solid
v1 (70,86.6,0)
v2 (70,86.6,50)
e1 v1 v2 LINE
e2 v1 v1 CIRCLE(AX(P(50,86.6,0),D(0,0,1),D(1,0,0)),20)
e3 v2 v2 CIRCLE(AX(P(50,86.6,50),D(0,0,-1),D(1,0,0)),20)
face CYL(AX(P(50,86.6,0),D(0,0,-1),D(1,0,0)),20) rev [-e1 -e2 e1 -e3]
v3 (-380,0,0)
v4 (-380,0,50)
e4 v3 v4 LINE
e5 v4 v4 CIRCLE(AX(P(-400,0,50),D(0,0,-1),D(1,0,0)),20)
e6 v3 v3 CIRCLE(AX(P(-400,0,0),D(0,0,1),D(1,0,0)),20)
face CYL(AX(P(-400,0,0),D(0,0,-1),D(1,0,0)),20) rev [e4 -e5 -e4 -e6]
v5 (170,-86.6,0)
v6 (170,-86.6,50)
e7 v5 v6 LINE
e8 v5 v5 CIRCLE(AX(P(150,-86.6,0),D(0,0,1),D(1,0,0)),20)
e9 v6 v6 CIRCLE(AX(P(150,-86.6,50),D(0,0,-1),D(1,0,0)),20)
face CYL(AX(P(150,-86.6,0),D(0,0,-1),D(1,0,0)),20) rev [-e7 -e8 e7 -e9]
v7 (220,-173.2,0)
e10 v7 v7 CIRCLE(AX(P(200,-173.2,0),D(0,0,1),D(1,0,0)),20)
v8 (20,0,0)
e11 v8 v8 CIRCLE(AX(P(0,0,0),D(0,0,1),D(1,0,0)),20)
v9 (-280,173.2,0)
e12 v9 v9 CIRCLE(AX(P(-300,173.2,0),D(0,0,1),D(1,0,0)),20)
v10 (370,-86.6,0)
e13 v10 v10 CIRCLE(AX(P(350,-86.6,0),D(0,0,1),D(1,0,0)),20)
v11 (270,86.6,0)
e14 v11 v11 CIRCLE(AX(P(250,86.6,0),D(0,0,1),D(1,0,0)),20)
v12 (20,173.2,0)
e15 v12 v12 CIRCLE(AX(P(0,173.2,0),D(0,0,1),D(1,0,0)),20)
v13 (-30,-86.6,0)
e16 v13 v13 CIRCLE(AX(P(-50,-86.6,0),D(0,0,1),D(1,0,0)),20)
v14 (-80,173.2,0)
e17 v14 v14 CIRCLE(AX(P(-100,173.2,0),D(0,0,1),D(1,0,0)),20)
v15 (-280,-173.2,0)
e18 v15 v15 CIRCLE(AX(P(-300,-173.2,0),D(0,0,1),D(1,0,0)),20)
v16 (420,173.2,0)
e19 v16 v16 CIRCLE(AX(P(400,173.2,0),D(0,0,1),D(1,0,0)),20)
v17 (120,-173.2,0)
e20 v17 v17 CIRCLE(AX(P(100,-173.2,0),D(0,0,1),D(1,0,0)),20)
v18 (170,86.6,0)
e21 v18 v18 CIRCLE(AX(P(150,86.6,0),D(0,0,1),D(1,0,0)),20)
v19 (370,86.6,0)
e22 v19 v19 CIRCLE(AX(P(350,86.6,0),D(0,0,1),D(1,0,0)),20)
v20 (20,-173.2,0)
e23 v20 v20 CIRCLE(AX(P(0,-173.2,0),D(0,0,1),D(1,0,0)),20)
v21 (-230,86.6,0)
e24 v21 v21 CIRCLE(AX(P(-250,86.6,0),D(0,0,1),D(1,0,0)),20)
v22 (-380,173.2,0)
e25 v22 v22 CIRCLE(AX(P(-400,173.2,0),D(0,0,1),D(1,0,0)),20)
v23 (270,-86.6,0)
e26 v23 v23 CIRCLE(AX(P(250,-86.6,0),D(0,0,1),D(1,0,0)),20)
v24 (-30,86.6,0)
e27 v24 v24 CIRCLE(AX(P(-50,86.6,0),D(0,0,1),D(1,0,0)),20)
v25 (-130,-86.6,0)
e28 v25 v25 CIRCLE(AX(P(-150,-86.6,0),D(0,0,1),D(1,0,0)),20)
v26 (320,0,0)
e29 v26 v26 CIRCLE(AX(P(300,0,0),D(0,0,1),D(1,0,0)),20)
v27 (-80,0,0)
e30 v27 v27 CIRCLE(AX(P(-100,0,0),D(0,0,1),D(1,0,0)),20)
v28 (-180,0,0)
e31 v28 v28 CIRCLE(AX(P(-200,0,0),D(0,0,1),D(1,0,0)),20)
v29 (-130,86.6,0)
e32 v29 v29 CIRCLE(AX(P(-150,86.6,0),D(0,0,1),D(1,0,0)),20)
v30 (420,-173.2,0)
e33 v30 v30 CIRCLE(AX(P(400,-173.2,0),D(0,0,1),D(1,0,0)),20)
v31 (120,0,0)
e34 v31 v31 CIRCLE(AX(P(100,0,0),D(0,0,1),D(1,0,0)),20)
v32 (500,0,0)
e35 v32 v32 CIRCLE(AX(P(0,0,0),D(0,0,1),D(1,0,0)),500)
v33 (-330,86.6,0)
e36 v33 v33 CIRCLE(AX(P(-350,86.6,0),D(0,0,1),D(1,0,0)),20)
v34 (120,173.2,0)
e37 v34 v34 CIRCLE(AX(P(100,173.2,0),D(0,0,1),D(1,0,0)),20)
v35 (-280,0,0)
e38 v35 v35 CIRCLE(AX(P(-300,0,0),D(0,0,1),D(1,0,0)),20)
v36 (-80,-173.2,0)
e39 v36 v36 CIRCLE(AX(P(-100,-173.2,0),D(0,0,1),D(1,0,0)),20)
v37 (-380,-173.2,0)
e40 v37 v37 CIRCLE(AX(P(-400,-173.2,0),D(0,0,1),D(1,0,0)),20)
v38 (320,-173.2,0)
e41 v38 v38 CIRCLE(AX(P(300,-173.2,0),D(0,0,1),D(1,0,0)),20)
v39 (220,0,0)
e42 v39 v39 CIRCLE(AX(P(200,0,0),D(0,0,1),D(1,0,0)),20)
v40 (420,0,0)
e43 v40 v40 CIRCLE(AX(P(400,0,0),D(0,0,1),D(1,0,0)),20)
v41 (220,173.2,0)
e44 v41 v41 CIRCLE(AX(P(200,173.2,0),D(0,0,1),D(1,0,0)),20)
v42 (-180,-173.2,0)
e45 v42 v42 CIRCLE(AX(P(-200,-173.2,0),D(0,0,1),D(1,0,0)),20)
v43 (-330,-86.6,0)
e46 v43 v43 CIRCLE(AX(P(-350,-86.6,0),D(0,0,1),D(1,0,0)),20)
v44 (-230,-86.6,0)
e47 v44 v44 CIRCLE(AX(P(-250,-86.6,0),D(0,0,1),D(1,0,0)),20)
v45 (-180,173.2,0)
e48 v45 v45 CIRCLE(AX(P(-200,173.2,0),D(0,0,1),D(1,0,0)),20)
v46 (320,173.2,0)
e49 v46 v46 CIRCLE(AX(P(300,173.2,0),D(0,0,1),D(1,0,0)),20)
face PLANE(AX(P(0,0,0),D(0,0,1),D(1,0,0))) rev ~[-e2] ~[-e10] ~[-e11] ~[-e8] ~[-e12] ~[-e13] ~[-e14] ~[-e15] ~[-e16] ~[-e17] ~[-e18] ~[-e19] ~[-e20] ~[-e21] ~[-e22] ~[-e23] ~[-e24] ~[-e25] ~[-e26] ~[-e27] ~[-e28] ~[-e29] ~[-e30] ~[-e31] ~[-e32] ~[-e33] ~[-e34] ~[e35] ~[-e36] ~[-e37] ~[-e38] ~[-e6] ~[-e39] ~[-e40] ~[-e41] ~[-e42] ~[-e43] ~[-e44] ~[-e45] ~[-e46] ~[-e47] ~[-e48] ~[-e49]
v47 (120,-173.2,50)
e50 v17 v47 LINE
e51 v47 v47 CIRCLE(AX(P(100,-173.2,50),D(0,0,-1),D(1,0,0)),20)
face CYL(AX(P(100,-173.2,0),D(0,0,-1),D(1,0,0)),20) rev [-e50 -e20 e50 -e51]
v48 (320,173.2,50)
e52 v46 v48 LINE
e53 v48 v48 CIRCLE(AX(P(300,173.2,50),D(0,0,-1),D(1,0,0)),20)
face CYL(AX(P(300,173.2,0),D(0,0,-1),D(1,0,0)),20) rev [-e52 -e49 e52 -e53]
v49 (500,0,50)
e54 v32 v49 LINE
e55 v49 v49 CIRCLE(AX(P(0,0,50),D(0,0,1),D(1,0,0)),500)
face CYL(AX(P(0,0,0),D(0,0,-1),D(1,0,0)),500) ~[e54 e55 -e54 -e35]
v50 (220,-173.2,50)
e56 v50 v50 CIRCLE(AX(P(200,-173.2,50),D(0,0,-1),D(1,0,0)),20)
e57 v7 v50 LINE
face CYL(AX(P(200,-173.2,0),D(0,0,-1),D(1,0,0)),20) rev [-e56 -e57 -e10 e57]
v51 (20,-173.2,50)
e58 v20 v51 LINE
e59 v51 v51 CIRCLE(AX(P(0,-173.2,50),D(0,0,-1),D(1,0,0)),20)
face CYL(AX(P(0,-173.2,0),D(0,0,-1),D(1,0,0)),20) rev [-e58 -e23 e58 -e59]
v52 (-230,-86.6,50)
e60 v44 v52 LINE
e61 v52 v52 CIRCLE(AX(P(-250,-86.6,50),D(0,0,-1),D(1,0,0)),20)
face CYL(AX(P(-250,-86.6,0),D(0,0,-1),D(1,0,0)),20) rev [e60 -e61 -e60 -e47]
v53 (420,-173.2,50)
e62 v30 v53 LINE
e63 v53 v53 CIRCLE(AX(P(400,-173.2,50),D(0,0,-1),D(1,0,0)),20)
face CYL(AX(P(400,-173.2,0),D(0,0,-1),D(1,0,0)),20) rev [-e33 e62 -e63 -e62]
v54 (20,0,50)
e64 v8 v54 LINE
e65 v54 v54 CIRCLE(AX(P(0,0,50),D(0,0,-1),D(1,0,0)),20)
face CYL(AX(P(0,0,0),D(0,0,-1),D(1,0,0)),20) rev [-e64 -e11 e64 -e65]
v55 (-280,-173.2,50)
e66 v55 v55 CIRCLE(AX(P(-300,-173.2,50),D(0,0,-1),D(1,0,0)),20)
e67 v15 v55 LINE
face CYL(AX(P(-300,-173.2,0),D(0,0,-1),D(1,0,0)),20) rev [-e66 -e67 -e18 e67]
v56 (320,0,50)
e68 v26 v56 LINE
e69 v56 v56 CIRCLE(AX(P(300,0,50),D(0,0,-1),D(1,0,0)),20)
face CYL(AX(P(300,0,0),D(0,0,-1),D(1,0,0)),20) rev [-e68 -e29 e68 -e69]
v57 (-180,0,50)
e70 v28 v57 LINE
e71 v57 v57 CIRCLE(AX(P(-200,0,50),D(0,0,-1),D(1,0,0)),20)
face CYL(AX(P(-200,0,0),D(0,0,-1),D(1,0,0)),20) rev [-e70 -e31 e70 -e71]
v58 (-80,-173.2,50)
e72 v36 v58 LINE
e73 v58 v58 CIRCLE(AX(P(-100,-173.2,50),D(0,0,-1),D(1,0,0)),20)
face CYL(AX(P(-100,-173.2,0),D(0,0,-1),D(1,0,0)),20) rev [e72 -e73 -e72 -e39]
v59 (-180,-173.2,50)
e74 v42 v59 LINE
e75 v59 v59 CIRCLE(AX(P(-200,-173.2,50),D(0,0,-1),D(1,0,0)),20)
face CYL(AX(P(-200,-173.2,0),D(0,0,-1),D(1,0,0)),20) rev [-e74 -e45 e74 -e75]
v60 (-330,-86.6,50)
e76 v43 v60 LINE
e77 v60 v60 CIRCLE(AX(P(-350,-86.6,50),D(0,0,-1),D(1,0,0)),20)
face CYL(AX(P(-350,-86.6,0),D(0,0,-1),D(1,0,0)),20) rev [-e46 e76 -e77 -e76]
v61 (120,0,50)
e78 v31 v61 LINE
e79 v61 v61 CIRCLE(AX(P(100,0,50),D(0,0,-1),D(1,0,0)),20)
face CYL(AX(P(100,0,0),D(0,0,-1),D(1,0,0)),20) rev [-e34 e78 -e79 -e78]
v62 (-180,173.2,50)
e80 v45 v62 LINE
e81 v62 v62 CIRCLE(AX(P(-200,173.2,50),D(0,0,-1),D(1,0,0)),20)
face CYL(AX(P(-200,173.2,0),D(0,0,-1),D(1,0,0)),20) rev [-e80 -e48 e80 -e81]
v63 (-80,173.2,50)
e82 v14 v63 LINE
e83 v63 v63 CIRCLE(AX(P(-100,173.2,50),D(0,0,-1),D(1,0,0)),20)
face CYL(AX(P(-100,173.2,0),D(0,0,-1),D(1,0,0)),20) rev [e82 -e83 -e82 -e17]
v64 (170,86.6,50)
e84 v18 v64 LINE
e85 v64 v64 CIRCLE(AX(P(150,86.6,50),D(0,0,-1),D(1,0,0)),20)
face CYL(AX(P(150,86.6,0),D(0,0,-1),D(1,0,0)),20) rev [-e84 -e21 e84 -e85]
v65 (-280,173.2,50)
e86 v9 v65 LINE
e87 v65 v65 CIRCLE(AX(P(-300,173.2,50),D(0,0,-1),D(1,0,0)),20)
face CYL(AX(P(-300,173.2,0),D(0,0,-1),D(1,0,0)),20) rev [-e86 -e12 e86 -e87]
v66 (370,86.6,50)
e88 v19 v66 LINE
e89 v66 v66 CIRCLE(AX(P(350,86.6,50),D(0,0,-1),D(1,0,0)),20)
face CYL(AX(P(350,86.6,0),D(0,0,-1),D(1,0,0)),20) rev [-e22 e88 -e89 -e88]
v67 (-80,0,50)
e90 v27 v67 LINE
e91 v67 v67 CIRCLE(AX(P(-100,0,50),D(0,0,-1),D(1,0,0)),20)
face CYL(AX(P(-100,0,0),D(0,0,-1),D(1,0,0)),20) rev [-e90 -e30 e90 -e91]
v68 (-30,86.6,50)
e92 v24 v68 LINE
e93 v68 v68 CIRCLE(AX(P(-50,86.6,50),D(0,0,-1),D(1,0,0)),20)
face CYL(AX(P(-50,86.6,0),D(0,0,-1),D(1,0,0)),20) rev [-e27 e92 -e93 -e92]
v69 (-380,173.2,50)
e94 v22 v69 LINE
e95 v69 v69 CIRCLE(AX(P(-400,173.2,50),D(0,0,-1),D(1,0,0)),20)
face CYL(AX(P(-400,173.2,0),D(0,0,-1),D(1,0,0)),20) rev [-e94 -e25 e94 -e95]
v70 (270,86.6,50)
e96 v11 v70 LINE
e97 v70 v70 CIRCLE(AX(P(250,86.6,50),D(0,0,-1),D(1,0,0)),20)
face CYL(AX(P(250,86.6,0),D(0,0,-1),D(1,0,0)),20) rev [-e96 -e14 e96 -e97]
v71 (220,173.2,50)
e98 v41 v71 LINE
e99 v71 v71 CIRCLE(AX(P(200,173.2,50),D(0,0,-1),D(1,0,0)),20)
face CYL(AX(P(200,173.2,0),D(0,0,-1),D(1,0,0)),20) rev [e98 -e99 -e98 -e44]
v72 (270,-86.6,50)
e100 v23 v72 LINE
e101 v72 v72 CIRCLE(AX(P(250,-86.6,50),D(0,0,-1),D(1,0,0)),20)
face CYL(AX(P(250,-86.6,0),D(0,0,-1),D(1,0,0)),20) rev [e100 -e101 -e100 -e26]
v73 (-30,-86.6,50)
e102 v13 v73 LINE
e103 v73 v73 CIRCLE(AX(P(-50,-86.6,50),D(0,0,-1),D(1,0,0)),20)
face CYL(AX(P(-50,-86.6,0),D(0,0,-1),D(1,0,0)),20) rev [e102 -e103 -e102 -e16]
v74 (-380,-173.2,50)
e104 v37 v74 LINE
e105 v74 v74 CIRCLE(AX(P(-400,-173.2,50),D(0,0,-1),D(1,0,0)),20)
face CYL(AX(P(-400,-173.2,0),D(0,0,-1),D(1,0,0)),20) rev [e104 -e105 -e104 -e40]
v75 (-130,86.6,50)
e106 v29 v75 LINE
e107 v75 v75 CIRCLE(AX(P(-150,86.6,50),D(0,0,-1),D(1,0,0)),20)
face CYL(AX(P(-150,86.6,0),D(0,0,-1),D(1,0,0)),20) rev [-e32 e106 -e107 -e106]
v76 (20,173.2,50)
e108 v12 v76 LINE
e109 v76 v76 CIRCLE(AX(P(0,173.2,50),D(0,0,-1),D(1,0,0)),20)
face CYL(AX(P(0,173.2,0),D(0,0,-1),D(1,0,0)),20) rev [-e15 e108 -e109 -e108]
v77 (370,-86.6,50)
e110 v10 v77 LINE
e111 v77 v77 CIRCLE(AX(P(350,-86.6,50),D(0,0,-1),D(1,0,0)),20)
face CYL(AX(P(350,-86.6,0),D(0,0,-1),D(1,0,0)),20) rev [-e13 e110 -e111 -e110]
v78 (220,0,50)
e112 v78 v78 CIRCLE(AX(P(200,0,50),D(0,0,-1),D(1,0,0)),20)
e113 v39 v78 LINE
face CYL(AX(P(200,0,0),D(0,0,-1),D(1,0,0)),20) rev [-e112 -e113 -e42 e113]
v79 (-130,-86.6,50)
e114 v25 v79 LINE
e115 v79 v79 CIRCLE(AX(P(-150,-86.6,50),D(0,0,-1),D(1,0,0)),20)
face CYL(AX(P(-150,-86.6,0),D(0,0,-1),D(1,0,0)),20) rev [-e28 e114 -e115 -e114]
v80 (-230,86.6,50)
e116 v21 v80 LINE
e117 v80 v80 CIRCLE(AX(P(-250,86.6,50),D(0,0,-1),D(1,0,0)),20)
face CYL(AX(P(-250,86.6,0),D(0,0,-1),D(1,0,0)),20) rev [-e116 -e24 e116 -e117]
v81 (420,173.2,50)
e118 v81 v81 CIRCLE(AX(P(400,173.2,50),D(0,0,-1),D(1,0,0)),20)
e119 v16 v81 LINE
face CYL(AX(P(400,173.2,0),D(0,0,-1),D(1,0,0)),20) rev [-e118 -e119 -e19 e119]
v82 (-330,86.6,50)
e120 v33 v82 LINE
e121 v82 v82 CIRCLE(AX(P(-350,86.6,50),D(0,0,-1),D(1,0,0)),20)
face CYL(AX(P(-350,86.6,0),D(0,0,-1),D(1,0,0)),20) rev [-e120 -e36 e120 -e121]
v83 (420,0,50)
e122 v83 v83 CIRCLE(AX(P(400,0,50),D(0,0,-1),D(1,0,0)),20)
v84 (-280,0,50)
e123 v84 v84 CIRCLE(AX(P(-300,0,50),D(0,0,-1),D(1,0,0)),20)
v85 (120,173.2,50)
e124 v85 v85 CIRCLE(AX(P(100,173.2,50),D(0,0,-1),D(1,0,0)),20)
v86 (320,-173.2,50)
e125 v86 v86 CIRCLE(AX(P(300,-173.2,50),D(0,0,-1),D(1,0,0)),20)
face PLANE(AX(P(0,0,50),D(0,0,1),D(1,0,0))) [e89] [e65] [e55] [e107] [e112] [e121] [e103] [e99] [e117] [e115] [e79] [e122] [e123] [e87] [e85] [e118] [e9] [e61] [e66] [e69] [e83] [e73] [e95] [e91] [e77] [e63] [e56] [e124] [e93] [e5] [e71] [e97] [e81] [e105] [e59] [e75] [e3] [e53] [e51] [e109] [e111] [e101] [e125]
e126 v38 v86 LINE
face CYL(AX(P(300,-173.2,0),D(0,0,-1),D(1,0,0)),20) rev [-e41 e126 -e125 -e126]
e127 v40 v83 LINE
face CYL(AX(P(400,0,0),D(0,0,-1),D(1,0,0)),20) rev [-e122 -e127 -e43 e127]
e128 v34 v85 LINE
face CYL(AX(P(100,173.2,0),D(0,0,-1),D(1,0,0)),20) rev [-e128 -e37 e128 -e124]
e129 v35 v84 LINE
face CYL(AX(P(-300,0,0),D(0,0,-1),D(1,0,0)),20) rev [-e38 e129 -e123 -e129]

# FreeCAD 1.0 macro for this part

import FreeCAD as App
import Part
import Sketcher
from FreeCAD import Vector
Q = App.Units.Quantity

doc = App.newDocument("Part")
body = doc.addObject("PartDesign::Body", "Body")

sketch1 = body.newObject("Sketcher::SketchObject", "Sketch")
sketch1.AttachmentSupport = (doc.getObject("XY_Plane"), [""])
sketch1.MapMode = "FlatFace"
sketch1.addGeometry(Part.Circle(Vector(0, 0, 0), Vector(0, 0, 1), 500), False)
sketch1.addConstraint([
    Sketcher.Constraint("Coincident", 0, 3, -1, 1),
    Sketcher.Constraint("Diameter", 0, Q("1000 mm")),
])
pad1 = body.newObject("PartDesign::Pad", "Pad")
pad1.Profile = sketch1
pad1.Length = 50

sketch2 = body.newObject("Sketcher::SketchObject", "Sketch001")
sketch2.AttachmentSupport = (doc.getObject("XY_Plane"), [""])
sketch2.MapMode = "FlatFace"
sketch2.addGeometry(Part.Circle(Vector(-400, 0, 0), Vector(0, 0, 1), 20), False)
sketch2.addConstraint([
    Sketcher.Constraint("PointOnObject", 0, 3, -1),
    Sketcher.Constraint("Diameter", 0, Q("40 mm")),
    Sketcher.Constraint("DistanceX", 0, 3, -1, 1, Q("400 mm")),
])
pocket1 = body.newObject("PartDesign::Pocket", "Pocket")
pocket1.Profile = sketch2
pocket1.Type = "ThroughAll"
pocket1.Reversed = True

sketch3 = body.newObject("Sketcher::SketchObject", "Sketch002")
sketch3.AttachmentSupport = (doc.getObject("XY_Plane"), [""])
sketch3.MapMode = "FlatFace"
sketch3.addGeometry(Part.Circle(Vector(-300, 0, 0), Vector(0, 0, 1), 20), False)
sketch3.addConstraint([
    Sketcher.Constraint("PointOnObject", 0, 3, -1),
    Sketcher.Constraint("Diameter", 0, Q("40 mm")),
    Sketcher.Constraint("DistanceX", 0, 3, -1, 1, Q("300 mm")),
])
pocket2 = body.newObject("PartDesign::Pocket", "Pocket001")
pocket2.Profile = sketch3
pocket2.Type = "ThroughAll"
pocket2.Reversed = True

sketch4 = body.newObject("Sketcher::SketchObject", "Sketch003")
sketch4.AttachmentSupport = (doc.getObject("XY_Plane"), [""])
sketch4.MapMode = "FlatFace"
sketch4.addGeometry(Part.Circle(Vector(-200, 0, 0), Vector(0, 0, 1), 20), False)
sketch4.addConstraint([
    Sketcher.Constraint("PointOnObject", 0, 3, -1),
    Sketcher.Constraint("Diameter", 0, Q("40 mm")),
    Sketcher.Constraint("DistanceX", 0, 3, -1, 1, Q("200 mm")),
])
pocket3 = body.newObject("PartDesign::Pocket", "Pocket002")
pocket3.Profile = sketch4
pocket3.Type = "ThroughAll"
pocket3.Reversed = True

sketch5 = body.newObject("Sketcher::SketchObject", "Sketch004")
sketch5.AttachmentSupport = (doc.getObject("XY_Plane"), [""])
sketch5.MapMode = "FlatFace"
sketch5.addGeometry(Part.Circle(Vector(-100, 0, 0), Vector(0, 0, 1), 20), False)
sketch5.addConstraint([
    Sketcher.Constraint("PointOnObject", 0, 3, -1),
    Sketcher.Constraint("Diameter", 0, Q("40 mm")),
    Sketcher.Constraint("DistanceX", 0, 3, -1, 1, Q("100 mm")),
])
pocket4 = body.newObject("PartDesign::Pocket", "Pocket003")
pocket4.Profile = sketch5
pocket4.Type = "ThroughAll"
pocket4.Reversed = True

sketch6 = body.newObject("Sketcher::SketchObject", "Sketch005")
sketch6.AttachmentSupport = (doc.getObject("XY_Plane"), [""])
sketch6.MapMode = "FlatFace"
sketch6.addGeometry(Part.Circle(Vector(0, 0, 0), Vector(0, 0, 1), 20), False)
sketch6.addConstraint([
    Sketcher.Constraint("Coincident", 0, 3, -1, 1),
    Sketcher.Constraint("Diameter", 0, Q("40 mm")),
])
pocket5 = body.newObject("PartDesign::Pocket", "Pocket004")
pocket5.Profile = sketch6
pocket5.Type = "ThroughAll"
pocket5.Reversed = True

sketch7 = body.newObject("Sketcher::SketchObject", "Sketch006")
sketch7.AttachmentSupport = (doc.getObject("XY_Plane"), [""])
sketch7.MapMode = "FlatFace"
sketch7.addGeometry(Part.Circle(Vector(100, 0, 0), Vector(0, 0, 1), 20), False)
sketch7.addConstraint([
    Sketcher.Constraint("PointOnObject", 0, 3, -1),
    Sketcher.Constraint("Diameter", 0, Q("40 mm")),
    Sketcher.Constraint("DistanceX", -1, 1, 0, 3, Q("100 mm")),
])
pocket6 = body.newObject("PartDesign::Pocket", "Pocket005")
pocket6.Profile = sketch7
pocket6.Type = "ThroughAll"
pocket6.Reversed = True

sketch8 = body.newObject("Sketcher::SketchObject", "Sketch007")
sketch8.AttachmentSupport = (doc.getObject("XY_Plane"), [""])
sketch8.MapMode = "FlatFace"
sketch8.addGeometry(Part.Circle(Vector(200, 0, 0), Vector(0, 0, 1), 20), False)
sketch8.addConstraint([
    Sketcher.Constraint("PointOnObject", 0, 3, -1),
    Sketcher.Constraint("Diameter", 0, Q("40 mm")),
    Sketcher.Constraint("DistanceX", -1, 1, 0, 3, Q("200 mm")),
])
pocket7 = body.newObject("PartDesign::Pocket", "Pocket006")
pocket7.Profile = sketch8
pocket7.Type = "ThroughAll"
pocket7.Reversed = True

sketch9 = body.newObject("Sketcher::SketchObject", "Sketch008")
sketch9.AttachmentSupport = (doc.getObject("XY_Plane"), [""])
sketch9.MapMode = "FlatFace"
sketch9.addGeometry(Part.Circle(Vector(300, 0, 0), Vector(0, 0, 1), 20), False)
sketch9.addConstraint([
    Sketcher.Constraint("PointOnObject", 0, 3, -1),
    Sketcher.Constraint("Diameter", 0, Q("40 mm")),
    Sketcher.Constraint("DistanceX", -1, 1, 0, 3, Q("300 mm")),
])
pocket8 = body.newObject("PartDesign::Pocket", "Pocket007")
pocket8.Profile = sketch9
pocket8.Type = "ThroughAll"
pocket8.Reversed = True

sketch10 = body.newObject("Sketcher::SketchObject", "Sketch009")
sketch10.AttachmentSupport = (doc.getObject("XY_Plane"), [""])
sketch10.MapMode = "FlatFace"
sketch10.addGeometry(Part.Circle(Vector(400, 0, 0), Vector(0, 0, 1), 20), False)
sketch10.addConstraint([
    Sketcher.Constraint("PointOnObject", 0, 3, -1),
    Sketcher.Constraint("Diameter", 0, Q("40 mm")),
    Sketcher.Constraint("DistanceX", -1, 1, 0, 3, Q("400 mm")),
])
pocket9 = body.newObject("PartDesign::Pocket", "Pocket008")
pocket9.Profile = sketch10
pocket9.Type = "ThroughAll"
pocket9.Reversed = True

sketch11 = body.newObject("Sketcher::SketchObject", "Sketch010")
sketch11.AttachmentSupport = (doc.getObject("XY_Plane"), [""])
sketch11.MapMode = "FlatFace"
sketch11.addGeometry(Part.Circle(Vector(-350, 87, 0), Vector(0, 0, 1), 20), False)
sketch11.addConstraint([
    Sketcher.Constraint("Diameter", 0, Q("40 mm")),
    Sketcher.Constraint("DistanceX", 0, 3, -1, 1, Q("350 mm")),
    Sketcher.Constraint("DistanceY", -1, 1, 0, 3, Q("86.6 mm")),
])
pocket10 = body.newObject("PartDesign::Pocket", "Pocket009")
pocket10.Profile = sketch11
pocket10.Type = "ThroughAll"
pocket10.Reversed = True

sketch12 = body.newObject("Sketcher::SketchObject", "Sketch011")
sketch12.AttachmentSupport = (doc.getObject("XY_Plane"), [""])
sketch12.MapMode = "FlatFace"
sketch12.addGeometry(Part.Circle(Vector(-250, 87, 0), Vector(0, 0, 1), 20), False)
sketch12.addConstraint([
    Sketcher.Constraint("Diameter", 0, Q("40 mm")),
    Sketcher.Constraint("DistanceX", 0, 3, -1, 1, Q("250 mm")),
    Sketcher.Constraint("DistanceY", -1, 1, 0, 3, Q("86.6 mm")),
])
pocket11 = body.newObject("PartDesign::Pocket", "Pocket010")
pocket11.Profile = sketch12
pocket11.Type = "ThroughAll"
pocket11.Reversed = True

sketch13 = body.newObject("Sketcher::SketchObject", "Sketch012")
sketch13.AttachmentSupport = (doc.getObject("XY_Plane"), [""])
sketch13.MapMode = "FlatFace"
sketch13.addGeometry(Part.Circle(Vector(-150, 87, 0), Vector(0, 0, 1), 20), False)
sketch13.addConstraint([
    Sketcher.Constraint("Diameter", 0, Q("40 mm")),
    Sketcher.Constraint("DistanceX", 0, 3, -1, 1, Q("150 mm")),
    Sketcher.Constraint("DistanceY", -1, 1, 0, 3, Q("86.6 mm")),
])
pocket12 = body.newObject("PartDesign::Pocket", "Pocket011")
pocket12.Profile = sketch13
pocket12.Type = "ThroughAll"
pocket12.Reversed = True

sketch14 = body.newObject("Sketcher::SketchObject", "Sketch013")
sketch14.AttachmentSupport = (doc.getObject("XY_Plane"), [""])
sketch14.MapMode = "FlatFace"
sketch14.addGeometry(Part.Circle(Vector(-50, 87, 0), Vector(0, 0, 1), 20), False)
sketch14.addConstraint([
    Sketcher.Constraint("Diameter", 0, Q("40 mm")),
    Sketcher.Constraint("DistanceX", 0, 3, -1, 1, Q("50 mm")),
    Sketcher.Constraint("DistanceY", -1, 1, 0, 3, Q("86.6 mm")),
])
pocket13 = body.newObject("PartDesign::Pocket", "Pocket012")
pocket13.Profile = sketch14
pocket13.Type = "ThroughAll"
pocket13.Reversed = True

sketch15 = body.newObject("Sketcher::SketchObject", "Sketch014")
sketch15.AttachmentSupport = (doc.getObject("XY_Plane"), [""])
sketch15.MapMode = "FlatFace"
sketch15.addGeometry(Part.Circle(Vector(50, 87, 0), Vector(0, 0, 1), 20), False)
sketch15.addConstraint([
    Sketcher.Constraint("Diameter", 0, Q("40 mm")),
    Sketcher.Constraint("DistanceX", -1, 1, 0, 3, Q("50 mm")),
    Sketcher.Constraint("DistanceY", -1, 1, 0, 3, Q("86.6 mm")),
])
pocket14 = body.newObject("PartDesign::Pocket", "Pocket013")
pocket14.Profile = sketch15
pocket14.Type = "ThroughAll"
pocket14.Reversed = True

sketch16 = body.newObject("Sketcher::SketchObject", "Sketch015")
sketch16.AttachmentSupport = (doc.getObject("XY_Plane"), [""])
sketch16.MapMode = "FlatFace"
sketch16.addGeometry(Part.Circle(Vector(150, 87, 0), Vector(0, 0, 1), 20), False)
sketch16.addConstraint([
    Sketcher.Constraint("Diameter", 0, Q("40 mm")),
    Sketcher.Constraint("DistanceX", -1, 1, 0, 3, Q("150 mm")),
    Sketcher.Constraint("DistanceY", -1, 1, 0, 3, Q("86.6 mm")),
])
pocket15 = body.newObject("PartDesign::Pocket", "Pocket014")
pocket15.Profile = sketch16
pocket15.Type = "ThroughAll"
pocket15.Reversed = True

sketch17 = body.newObject("Sketcher::SketchObject", "Sketch016")
sketch17.AttachmentSupport = (doc.getObject("XY_Plane"), [""])
sketch17.MapMode = "FlatFace"
sketch17.addGeometry(Part.Circle(Vector(250, 87, 0), Vector(0, 0, 1), 20), False)
sketch17.addConstraint([
    Sketcher.Constraint("Diameter", 0, Q("40 mm")),
    Sketcher.Constraint("DistanceX", -1, 1, 0, 3, Q("250 mm")),
    Sketcher.Constraint("DistanceY", -1, 1, 0, 3, Q("86.6 mm")),
])
pocket16 = body.newObject("PartDesign::Pocket", "Pocket015")
pocket16.Profile = sketch17
pocket16.Type = "ThroughAll"
pocket16.Reversed = True

sketch18 = body.newObject("Sketcher::SketchObject", "Sketch017")
sketch18.AttachmentSupport = (doc.getObject("XY_Plane"), [""])
sketch18.MapMode = "FlatFace"
sketch18.addGeometry(Part.Circle(Vector(350, 87, 0), Vector(0, 0, 1), 20), False)
sketch18.addConstraint([
    Sketcher.Constraint("Diameter", 0, Q("40 mm")),
    Sketcher.Constraint("DistanceX", -1, 1, 0, 3, Q("350 mm")),
    Sketcher.Constraint("DistanceY", -1, 1, 0, 3, Q("86.6 mm")),
])
pocket17 = body.newObject("PartDesign::Pocket", "Pocket016")
pocket17.Profile = sketch18
pocket17.Type = "ThroughAll"
pocket17.Reversed = True

sketch19 = body.newObject("Sketcher::SketchObject", "Sketch018")
sketch19.AttachmentSupport = (doc.getObject("XY_Plane"), [""])
sketch19.MapMode = "FlatFace"
sketch19.addGeometry(Part.Circle(Vector(-400, 173, 0), Vector(0, 0, 1), 20), False)
sketch19.addConstraint([
    Sketcher.Constraint("Diameter", 0, Q("40 mm")),
    Sketcher.Constraint("DistanceX", 0, 3, -1, 1, Q("400 mm")),
    Sketcher.Constraint("DistanceY", -1, 1, 0, 3, Q("173.2 mm")),
])
pocket18 = body.newObject("PartDesign::Pocket", "Pocket017")
pocket18.Profile = sketch19
pocket18.Type = "ThroughAll"
pocket18.Reversed = True

sketch20 = body.newObject("Sketcher::SketchObject", "Sketch019")
sketch20.AttachmentSupport = (doc.getObject("XY_Plane"), [""])
sketch20.MapMode = "FlatFace"
sketch20.addGeometry(Part.Circle(Vector(-300, 173, 0), Vector(0, 0, 1), 20), False)
sketch20.addConstraint([
    Sketcher.Constraint("Diameter", 0, Q("40 mm")),
    Sketcher.Constraint("DistanceX", 0, 3, -1, 1, Q("300 mm")),
    Sketcher.Constraint("DistanceY", -1, 1, 0, 3, Q("173.2 mm")),
])
pocket19 = body.newObject("PartDesign::Pocket", "Pocket018")
pocket19.Profile = sketch20
pocket19.Type = "ThroughAll"
pocket19.Reversed = True

sketch21 = body.newObject("Sketcher::SketchObject", "Sketch020")
sketch21.AttachmentSupport = (doc.getObject("XY_Plane"), [""])
sketch21.MapMode = "FlatFace"
sketch21.addGeometry(Part.Circle(Vector(-200, 173, 0), Vector(0, 0, 1), 20), False)
sketch21.addConstraint([
    Sketcher.Constraint("Diameter", 0, Q("40 mm")),
    Sketcher.Constraint("DistanceX", 0, 3, -1, 1, Q("200 mm")),
    Sketcher.Constraint("DistanceY", -1, 1, 0, 3, Q("173.2 mm")),
])
pocket20 = body.newObject("PartDesign::Pocket", "Pocket019")
pocket20.Profile = sketch21
pocket20.Type = "ThroughAll"
pocket20.Reversed = True

sketch22 = body.newObject("Sketcher::SketchObject", "Sketch021")
sketch22.AttachmentSupport = (doc.getObject("XY_Plane"), [""])
sketch22.MapMode = "FlatFace"
sketch22.addGeometry(Part.Circle(Vector(-100, 173, 0), Vector(0, 0, 1), 20), False)
sketch22.addConstraint([
    Sketcher.Constraint("Diameter", 0, Q("40 mm")),
    Sketcher.Constraint("DistanceX", 0, 3, -1, 1, Q("100 mm")),
    Sketcher.Constraint("DistanceY", -1, 1, 0, 3, Q("173.2 mm")),
])
pocket21 = body.newObject("PartDesign::Pocket", "Pocket020")
pocket21.Profile = sketch22
pocket21.Type = "ThroughAll"
pocket21.Reversed = True

sketch23 = body.newObject("Sketcher::SketchObject", "Sketch022")
sketch23.AttachmentSupport = (doc.getObject("XY_Plane"), [""])
sketch23.MapMode = "FlatFace"
sketch23.addGeometry(Part.Circle(Vector(0, 173, 0), Vector(0, 0, 1), 20), False)
sketch23.addConstraint([
    Sketcher.Constraint("PointOnObject", 0, 3, -2),
    Sketcher.Constraint("Diameter", 0, Q("40 mm")),
    Sketcher.Constraint("DistanceY", -1, 1, 0, 3, Q("173.2 mm")),
])
pocket22 = body.newObject("PartDesign::Pocket", "Pocket021")
pocket22.Profile = sketch23
pocket22.Type = "ThroughAll"
pocket22.Reversed = True

sketch24 = body.newObject("Sketcher::SketchObject", "Sketch023")
sketch24.AttachmentSupport = (doc.getObject("XY_Plane"), [""])
sketch24.MapMode = "FlatFace"
sketch24.addGeometry(Part.Circle(Vector(100, 173, 0), Vector(0, 0, 1), 20), False)
sketch24.addConstraint([
    Sketcher.Constraint("Diameter", 0, Q("40 mm")),
    Sketcher.Constraint("DistanceX", -1, 1, 0, 3, Q("100 mm")),
    Sketcher.Constraint("DistanceY", -1, 1, 0, 3, Q("173.2 mm")),
])
pocket23 = body.newObject("PartDesign::Pocket", "Pocket022")
pocket23.Profile = sketch24
pocket23.Type = "ThroughAll"
pocket23.Reversed = True

sketch25 = body.newObject("Sketcher::SketchObject", "Sketch024")
sketch25.AttachmentSupport = (doc.getObject("XY_Plane"), [""])
sketch25.MapMode = "FlatFace"
sketch25.addGeometry(Part.Circle(Vector(200, 173, 0), Vector(0, 0, 1), 20), False)
sketch25.addConstraint([
    Sketcher.Constraint("Diameter", 0, Q("40 mm")),
    Sketcher.Constraint("DistanceX", -1, 1, 0, 3, Q("200 mm")),
    Sketcher.Constraint("DistanceY", -1, 1, 0, 3, Q("173.2 mm")),
])
pocket24 = body.newObject("PartDesign::Pocket", "Pocket023")
pocket24.Profile = sketch25
pocket24.Type = "ThroughAll"
pocket24.Reversed = True

sketch26 = body.newObject("Sketcher::SketchObject", "Sketch025")
sketch26.AttachmentSupport = (doc.getObject("XY_Plane"), [""])
sketch26.MapMode = "FlatFace"
sketch26.addGeometry(Part.Circle(Vector(300, 173, 0), Vector(0, 0, 1), 20), False)
sketch26.addConstraint([
    Sketcher.Constraint("Diameter", 0, Q("40 mm")),
    Sketcher.Constraint("DistanceX", -1, 1, 0, 3, Q("300 mm")),
    Sketcher.Constraint("DistanceY", -1, 1, 0, 3, Q("173.2 mm")),
])
pocket25 = body.newObject("PartDesign::Pocket", "Pocket024")
pocket25.Profile = sketch26
pocket25.Type = "ThroughAll"
pocket25.Reversed = True

sketch27 = body.newObject("Sketcher::SketchObject", "Sketch026")
sketch27.AttachmentSupport = (doc.getObject("XY_Plane"), [""])
sketch27.MapMode = "FlatFace"
sketch27.addGeometry(Part.Circle(Vector(400, 173, 0), Vector(0, 0, 1), 20), False)
sketch27.addConstraint([
    Sketcher.Constraint("Diameter", 0, Q("40 mm")),
    Sketcher.Constraint("DistanceX", -1, 1, 0, 3, Q("400 mm")),
    Sketcher.Constraint("DistanceY", -1, 1, 0, 3, Q("173.2 mm")),
])
pocket26 = body.newObject("PartDesign::Pocket", "Pocket025")
pocket26.Profile = sketch27
pocket26.Type = "ThroughAll"
pocket26.Reversed = True

sketch28 = body.newObject("Sketcher::SketchObject", "Sketch027")
sketch28.AttachmentSupport = (doc.getObject("XY_Plane"), [""])
sketch28.MapMode = "FlatFace"
sketch28.addGeometry(Part.Circle(Vector(-350, -87, 0), Vector(0, 0, 1), 20), False)
sketch28.addConstraint([
    Sketcher.Constraint("Diameter", 0, Q("40 mm")),
    Sketcher.Constraint("DistanceX", 0, 3, -1, 1, Q("350 mm")),
    Sketcher.Constraint("DistanceY", 0, 3, -1, 1, Q("86.6 mm")),
])
pocket27 = body.newObject("PartDesign::Pocket", "Pocket026")
pocket27.Profile = sketch28
pocket27.Type = "ThroughAll"
pocket27.Reversed = True

sketch29 = body.newObject("Sketcher::SketchObject", "Sketch028")
sketch29.AttachmentSupport = (doc.getObject("XY_Plane"), [""])
sketch29.MapMode = "FlatFace"
sketch29.addGeometry(Part.Circle(Vector(-250, -87, 0), Vector(0, 0, 1), 20), False)
sketch29.addConstraint([
    Sketcher.Constraint("Diameter", 0, Q("40 mm")),
    Sketcher.Constraint("DistanceX", 0, 3, -1, 1, Q("250 mm")),
    Sketcher.Constraint("DistanceY", 0, 3, -1, 1, Q("86.6 mm")),
])
pocket28 = body.newObject("PartDesign::Pocket", "Pocket027")
pocket28.Profile = sketch29
pocket28.Type = "ThroughAll"
pocket28.Reversed = True

sketch30 = body.newObject("Sketcher::SketchObject", "Sketch029")
sketch30.AttachmentSupport = (doc.getObject("XY_Plane"), [""])
sketch30.MapMode = "FlatFace"
sketch30.addGeometry(Part.Circle(Vector(-150, -87, 0), Vector(0, 0, 1), 20), False)
sketch30.addConstraint([
    Sketcher.Constraint("Diameter", 0, Q("40 mm")),
    Sketcher.Constraint("DistanceX", 0, 3, -1, 1, Q("150 mm")),
    Sketcher.Constraint("DistanceY", 0, 3, -1, 1, Q("86.6 mm")),
])
pocket29 = body.newObject("PartDesign::Pocket", "Pocket028")
pocket29.Profile = sketch30
pocket29.Type = "ThroughAll"
pocket29.Reversed = True

sketch31 = body.newObject("Sketcher::SketchObject", "Sketch030")
sketch31.AttachmentSupport = (doc.getObject("XY_Plane"), [""])
sketch31.MapMode = "FlatFace"
sketch31.addGeometry(Part.Circle(Vector(-50, -87, 0), Vector(0, 0, 1), 20), False)
sketch31.addConstraint([
    Sketcher.Constraint("Diameter", 0, Q("40 mm")),
    Sketcher.Constraint("DistanceX", 0, 3, -1, 1, Q("50 mm")),
    Sketcher.Constraint("DistanceY", 0, 3, -1, 1, Q("86.6 mm")),
])
pocket30 = body.newObject("PartDesign::Pocket", "Pocket029")
pocket30.Profile = sketch31
pocket30.Type = "ThroughAll"
pocket30.Reversed = True

sketch32 = body.newObject("Sketcher::SketchObject", "Sketch031")
sketch32.AttachmentSupport = (doc.getObject("XY_Plane"), [""])
sketch32.MapMode = "FlatFace"
sketch32.addGeometry(Part.Circle(Vector(150, -87, 0), Vector(0, 0, 1), 20), False)
sketch32.addConstraint([
    Sketcher.Constraint("Diameter", 0, Q("40 mm")),
    Sketcher.Constraint("DistanceX", -1, 1, 0, 3, Q("150 mm")),
    Sketcher.Constraint("DistanceY", 0, 3, -1, 1, Q("86.6 mm")),
])
pocket31 = body.newObject("PartDesign::Pocket", "Pocket030")
pocket31.Profile = sketch32
pocket31.Type = "ThroughAll"
pocket31.Reversed = True

sketch33 = body.newObject("Sketcher::SketchObject", "Sketch032")
sketch33.AttachmentSupport = (doc.getObject("XY_Plane"), [""])
sketch33.MapMode = "FlatFace"
sketch33.addGeometry(Part.Circle(Vector(250, -87, 0), Vector(0, 0, 1), 20), False)
sketch33.addConstraint([
    Sketcher.Constraint("Diameter", 0, Q("40 mm")),
    Sketcher.Constraint("DistanceX", -1, 1, 0, 3, Q("250 mm")),
    Sketcher.Constraint("DistanceY", 0, 3, -1, 1, Q("86.6 mm")),
])
pocket32 = body.newObject("PartDesign::Pocket", "Pocket031")
pocket32.Profile = sketch33
pocket32.Type = "ThroughAll"
pocket32.Reversed = True

sketch34 = body.newObject("Sketcher::SketchObject", "Sketch033")
sketch34.AttachmentSupport = (doc.getObject("XY_Plane"), [""])
sketch34.MapMode = "FlatFace"
sketch34.addGeometry(Part.Circle(Vector(350, -87, 0), Vector(0, 0, 1), 20), False)
sketch34.addConstraint([
    Sketcher.Constraint("Diameter", 0, Q("40 mm")),
    Sketcher.Constraint("DistanceX", -1, 1, 0, 3, Q("350 mm")),
    Sketcher.Constraint("DistanceY", 0, 3, -1, 1, Q("86.6 mm")),
])
pocket33 = body.newObject("PartDesign::Pocket", "Pocket032")
pocket33.Profile = sketch34
pocket33.Type = "ThroughAll"
pocket33.Reversed = True

sketch35 = body.newObject("Sketcher::SketchObject", "Sketch034")
sketch35.AttachmentSupport = (doc.getObject("XY_Plane"), [""])
sketch35.MapMode = "FlatFace"
sketch35.addGeometry(Part.Circle(Vector(-400, -173, 0), Vector(0, 0, 1), 20), False)
sketch35.addConstraint([
    Sketcher.Constraint("Diameter", 0, Q("40 mm")),
    Sketcher.Constraint("DistanceX", 0, 3, -1, 1, Q("400 mm")),
    Sketcher.Constraint("DistanceY", 0, 3, -1, 1, Q("173.2 mm")),
])
pocket34 = body.newObject("PartDesign::Pocket", "Pocket033")
pocket34.Profile = sketch35
pocket34.Type = "ThroughAll"
pocket34.Reversed = True

sketch36 = body.newObject("Sketcher::SketchObject", "Sketch035")
sketch36.AttachmentSupport = (doc.getObject("XY_Plane"), [""])
sketch36.MapMode = "FlatFace"
sketch36.addGeometry(Part.Circle(Vector(-300, -173, 0), Vector(0, 0, 1), 20), False)
sketch36.addConstraint([
    Sketcher.Constraint("Diameter", 0, Q("40 mm")),
    Sketcher.Constraint("DistanceX", 0, 3, -1, 1, Q("300 mm")),
    Sketcher.Constraint("DistanceY", 0, 3, -1, 1, Q("173.2 mm")),
])
pocket35 = body.newObject("PartDesign::Pocket", "Pocket034")
pocket35.Profile = sketch36
pocket35.Type = "ThroughAll"
pocket35.Reversed = True

sketch37 = body.newObject("Sketcher::SketchObject", "Sketch036")
sketch37.AttachmentSupport = (doc.getObject("XY_Plane"), [""])
sketch37.MapMode = "FlatFace"
sketch37.addGeometry(Part.Circle(Vector(-200, -173, 0), Vector(0, 0, 1), 20), False)
sketch37.addConstraint([
    Sketcher.Constraint("Diameter", 0, Q("40 mm")),
    Sketcher.Constraint("DistanceX", 0, 3, -1, 1, Q("200 mm")),
    Sketcher.Constraint("DistanceY", 0, 3, -1, 1, Q("173.2 mm")),
])
pocket36 = body.newObject("PartDesign::Pocket", "Pocket035")
pocket36.Profile = sketch37
pocket36.Type = "ThroughAll"
pocket36.Reversed = True

sketch38 = body.newObject("Sketcher::SketchObject", "Sketch037")
sketch38.AttachmentSupport = (doc.getObject("XY_Plane"), [""])
sketch38.MapMode = "FlatFace"
sketch38.addGeometry(Part.Circle(Vector(-100, -173, 0), Vector(0, 0, 1), 20), False)
sketch38.addConstraint([
    Sketcher.Constraint("Diameter", 0, Q("40 mm")),
    Sketcher.Constraint("DistanceX", 0, 3, -1, 1, Q("100 mm")),
    Sketcher.Constraint("DistanceY", 0, 3, -1, 1, Q("173.2 mm")),
])
pocket37 = body.newObject("PartDesign::Pocket", "Pocket036")
pocket37.Profile = sketch38
pocket37.Type = "ThroughAll"
pocket37.Reversed = True

sketch39 = body.newObject("Sketcher::SketchObject", "Sketch038")
sketch39.AttachmentSupport = (doc.getObject("XY_Plane"), [""])
sketch39.MapMode = "FlatFace"
sketch39.addGeometry(Part.Circle(Vector(0, -173, 0), Vector(0, 0, 1), 20), False)
sketch39.addConstraint([
    Sketcher.Constraint("PointOnObject", 0, 3, -2),
    Sketcher.Constraint("Diameter", 0, Q("40 mm")),
    Sketcher.Constraint("DistanceY", 0, 3, -1, 1, Q("173.2 mm")),
])
pocket38 = body.newObject("PartDesign::Pocket", "Pocket037")
pocket38.Profile = sketch39
pocket38.Type = "ThroughAll"
pocket38.Reversed = True

sketch40 = body.newObject("Sketcher::SketchObject", "Sketch039")
sketch40.AttachmentSupport = (doc.getObject("XY_Plane"), [""])
sketch40.MapMode = "FlatFace"
sketch40.addGeometry(Part.Circle(Vector(100, -173, 0), Vector(0, 0, 1), 20), False)
sketch40.addConstraint([
    Sketcher.Constraint("Diameter", 0, Q("40 mm")),
    Sketcher.Constraint("DistanceX", -1, 1, 0, 3, Q("100 mm")),
    Sketcher.Constraint("DistanceY", 0, 3, -1, 1, Q("173.2 mm")),
])
pocket39 = body.newObject("PartDesign::Pocket", "Pocket038")
pocket39.Profile = sketch40
pocket39.Type = "ThroughAll"
pocket39.Reversed = True

sketch41 = body.newObject("Sketcher::SketchObject", "Sketch040")
sketch41.AttachmentSupport = (doc.getObject("XY_Plane"), [""])
sketch41.MapMode = "FlatFace"
sketch41.addGeometry(Part.Circle(Vector(200, -173, 0), Vector(0, 0, 1), 20), False)
sketch41.addConstraint([
    Sketcher.Constraint("Diameter", 0, Q("40 mm")),
    Sketcher.Constraint("DistanceX", -1, 1, 0, 3, Q("200 mm")),
    Sketcher.Constraint("DistanceY", 0, 3, -1, 1, Q("173.2 mm")),
])
pocket40 = body.newObject("PartDesign::Pocket", "Pocket039")
pocket40.Profile = sketch41
pocket40.Type = "ThroughAll"
pocket40.Reversed = True

sketch42 = body.newObject("Sketcher::SketchObject", "Sketch041")
sketch42.AttachmentSupport = (doc.getObject("XY_Plane"), [""])
sketch42.MapMode = "FlatFace"
sketch42.addGeometry(Part.Circle(Vector(300, -173, 0), Vector(0, 0, 1), 20), False)
sketch42.addConstraint([
    Sketcher.Constraint("Diameter", 0, Q("40 mm")),
    Sketcher.Constraint("DistanceX", -1, 1, 0, 3, Q("300 mm")),
    Sketcher.Constraint("DistanceY", 0, 3, -1, 1, Q("173.2 mm")),
])
pocket41 = body.newObject("PartDesign::Pocket", "Pocket040")
pocket41.Profile = sketch42
pocket41.Type = "ThroughAll"
pocket41.Reversed = True

sketch43 = body.newObject("Sketcher::SketchObject", "Sketch042")
sketch43.AttachmentSupport = (doc.getObject("XY_Plane"), [""])
sketch43.MapMode = "FlatFace"
sketch43.addGeometry(Part.Circle(Vector(400, -173, 0), Vector(0, 0, 1), 20), False)
sketch43.addConstraint([
    Sketcher.Constraint("Diameter", 0, Q("40 mm")),
    Sketcher.Constraint("DistanceX", -1, 1, 0, 3, Q("400 mm")),
    Sketcher.Constraint("DistanceY", 0, 3, -1, 1, Q("173.2 mm")),
])
pocket42 = body.newObject("PartDesign::Pocket", "Pocket041")
pocket42.Profile = sketch43
pocket42.Type = "ThroughAll"
pocket42.Reversed = True

doc.recompute()
